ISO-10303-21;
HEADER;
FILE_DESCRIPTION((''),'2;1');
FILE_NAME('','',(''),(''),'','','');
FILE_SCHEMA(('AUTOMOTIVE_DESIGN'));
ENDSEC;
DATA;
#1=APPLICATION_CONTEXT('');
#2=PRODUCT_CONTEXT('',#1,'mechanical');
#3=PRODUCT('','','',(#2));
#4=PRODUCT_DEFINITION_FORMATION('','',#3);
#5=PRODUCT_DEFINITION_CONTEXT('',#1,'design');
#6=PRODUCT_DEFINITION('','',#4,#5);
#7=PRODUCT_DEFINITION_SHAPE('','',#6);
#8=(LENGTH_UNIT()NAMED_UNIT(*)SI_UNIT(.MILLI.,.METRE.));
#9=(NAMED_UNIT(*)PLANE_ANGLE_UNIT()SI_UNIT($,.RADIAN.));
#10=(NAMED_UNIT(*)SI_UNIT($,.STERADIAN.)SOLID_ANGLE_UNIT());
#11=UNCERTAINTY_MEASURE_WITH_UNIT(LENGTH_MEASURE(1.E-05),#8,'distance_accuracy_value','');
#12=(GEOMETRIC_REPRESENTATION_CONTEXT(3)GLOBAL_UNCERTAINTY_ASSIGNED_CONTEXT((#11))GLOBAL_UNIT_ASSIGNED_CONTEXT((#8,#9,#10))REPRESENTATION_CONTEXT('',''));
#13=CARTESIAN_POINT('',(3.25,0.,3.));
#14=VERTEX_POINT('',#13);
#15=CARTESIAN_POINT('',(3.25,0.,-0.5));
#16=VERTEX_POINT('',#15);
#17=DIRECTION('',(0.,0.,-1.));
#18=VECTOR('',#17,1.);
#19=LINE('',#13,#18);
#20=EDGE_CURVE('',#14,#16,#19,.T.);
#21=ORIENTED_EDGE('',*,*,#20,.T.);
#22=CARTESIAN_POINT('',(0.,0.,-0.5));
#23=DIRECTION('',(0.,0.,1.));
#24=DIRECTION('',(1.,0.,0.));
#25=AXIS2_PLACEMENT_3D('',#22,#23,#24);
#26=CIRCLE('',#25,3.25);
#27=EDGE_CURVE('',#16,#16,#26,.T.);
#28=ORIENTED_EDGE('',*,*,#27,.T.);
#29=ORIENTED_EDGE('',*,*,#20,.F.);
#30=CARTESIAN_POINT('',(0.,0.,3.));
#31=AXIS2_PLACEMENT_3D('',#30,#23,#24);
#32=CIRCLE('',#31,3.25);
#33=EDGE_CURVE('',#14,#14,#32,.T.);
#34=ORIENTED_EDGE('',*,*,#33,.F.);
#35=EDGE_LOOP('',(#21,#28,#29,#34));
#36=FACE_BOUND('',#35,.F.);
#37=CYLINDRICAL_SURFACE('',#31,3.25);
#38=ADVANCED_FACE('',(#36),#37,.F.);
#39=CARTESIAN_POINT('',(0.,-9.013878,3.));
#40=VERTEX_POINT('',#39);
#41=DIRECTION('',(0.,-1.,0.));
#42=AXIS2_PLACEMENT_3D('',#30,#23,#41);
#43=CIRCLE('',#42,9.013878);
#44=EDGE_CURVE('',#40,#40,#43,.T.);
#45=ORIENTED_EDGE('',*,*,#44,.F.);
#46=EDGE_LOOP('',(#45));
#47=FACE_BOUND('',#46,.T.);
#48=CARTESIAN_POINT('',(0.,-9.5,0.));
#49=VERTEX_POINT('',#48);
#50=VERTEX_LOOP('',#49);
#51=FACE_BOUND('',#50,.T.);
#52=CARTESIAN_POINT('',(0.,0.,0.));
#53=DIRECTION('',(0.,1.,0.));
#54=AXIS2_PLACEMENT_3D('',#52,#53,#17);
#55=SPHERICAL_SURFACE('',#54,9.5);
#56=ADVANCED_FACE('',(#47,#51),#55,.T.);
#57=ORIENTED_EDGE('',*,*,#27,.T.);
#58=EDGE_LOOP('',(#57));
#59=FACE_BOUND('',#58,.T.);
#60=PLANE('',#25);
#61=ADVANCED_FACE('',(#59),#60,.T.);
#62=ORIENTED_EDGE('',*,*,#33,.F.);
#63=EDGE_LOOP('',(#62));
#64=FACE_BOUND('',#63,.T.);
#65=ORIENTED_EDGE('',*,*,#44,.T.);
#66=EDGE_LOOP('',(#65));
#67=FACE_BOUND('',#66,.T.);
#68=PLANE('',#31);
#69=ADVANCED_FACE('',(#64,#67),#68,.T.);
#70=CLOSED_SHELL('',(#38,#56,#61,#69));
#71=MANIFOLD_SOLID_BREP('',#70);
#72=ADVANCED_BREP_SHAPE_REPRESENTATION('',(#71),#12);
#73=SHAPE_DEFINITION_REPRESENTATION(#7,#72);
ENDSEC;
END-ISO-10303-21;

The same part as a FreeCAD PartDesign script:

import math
import FreeCAD as App
import Part
import Sketcher
from FreeCAD import Vector


def add_polygon(sketch, points):
    """Adds a closed chain of lines whose ends are joined by coincident constraints."""
    first, n = sketch.GeometryCount, len(points)
    for a, b in zip(points, points[1:] + points[:1]):
        sketch.addGeometry(Part.LineSegment(App.Vector(*a, 0), App.Vector(*b, 0)), False)
    for i in range(n):
        sketch.addConstraint(Sketcher.Constraint("Coincident", first + i, 2, first + (i + 1) % n, 1))

doc = App.newDocument("Part")
body = doc.addObject("PartDesign::Body", "Body")

sketch1 = doc.addObject("Sketcher::SketchObject", "Sketch")
body.addObject(sketch1)
sketch1.AttachmentSupport = (doc.YZ_Plane, [""])
sketch1.MapMode = "FlatFace"
sketch1.addGeometry([
    Part.LineSegment(Vector(9.5, 0, 0), Vector(-9.5, 0, 0)),
    Part.ArcOfCircle(Part.Circle(Vector(0, 0, 0), Vector(0, 0, 1), 9.5), math.radians(180), math.radians(360)),
], False)
sketch1.addConstraint([
    Sketcher.Constraint("Coincident", 0, 1, 1, 2),
    Sketcher.Constraint("Coincident", 1, 1, 0, 2),
    Sketcher.Constraint("Horizontal", 0),
    Sketcher.Constraint("Coincident", 1, 3, -1, 1),
    Sketcher.Constraint("PointOnObject", 0, 1, -1),
    Sketcher.Constraint("Radius", 1, 9.5),
])
revolution = doc.addObject("PartDesign::Revolution", "Revolution")
body.addObject(revolution)
revolution.Profile = sketch1
revolution.ReferenceAxis = (sketch1, ["H_Axis"])
revolution.Angle = 360
body2 = doc.addObject("PartDesign::Body", "Body001")

sketch2 = doc.addObject("Sketcher::SketchObject", "Sketch001")
body2.addObject(sketch2)
sketch2.AttachmentSupport = (doc.getObject("XY_Plane001"), [""])
sketch2.MapMode = "FlatFace"
add_polygon(sketch2, [(-12.847432, 12.292297), (-12.847432, -12.292297), (12.847432, -12.292297), (12.847432, 12.292297)])
sketch2.addConstraint([
    Sketcher.Constraint("Vertical", 0),
    Sketcher.Constraint("Horizontal", 1),
    Sketcher.Constraint("Vertical", 2),
    Sketcher.Constraint("Horizontal", 3),
    Sketcher.Constraint("Symmetric", 0, 2, 2, 2, -1, 1),
    Sketcher.Constraint("DistanceX", 1, 1, 1, 2, 25.694864),
    Sketcher.Constraint("DistanceY", 0, 2, 0, 1, 24.584594),
])
pad1 = doc.addObject("PartDesign::Pad", "Pad")
body2.addObject(pad1)
pad1.Profile = sketch2
pad1.Length = 25
body3 = doc.addObject("PartDesign::Body", "Body002")
doc.recompute()

body2.Placement = App.Placement(Vector(0, 0, 3), App.Rotation(Vector(0, 0, 1), 0))
boolean = doc.addObject("PartDesign::Boolean", "Boolean")
body3.addObject(boolean)
boolean.Type = "Fuse"
boolean.addObjects([body2])
doc.recompute()

boolean2 = doc.addObject("PartDesign::Boolean", "Boolean001")
body.addObject(boolean2)
boolean2.Type = "Cut"
boolean2.addObjects([body3])

sketch3 = doc.addObject("Sketcher::SketchObject", "Sketch002")
body.addObject(sketch3)
sketch3.AttachmentSupport = (doc.XY_Plane, [""])
sketch3.MapMode = "FlatFace"
sketch3.AttachmentOffset = App.Placement(Vector(0, 0, 3), App.Rotation())
sketch3.addGeometry(Part.Circle(Vector(0, 0, 0), Vector(0, 0, 1), 3.25), False)
sketch3.addConstraint([
    Sketcher.Constraint("Coincident", 0, 3, -1, 1),
    Sketcher.Constraint("Diameter", 0, 6.5),
])
pocket1 = doc.addObject("PartDesign::Pocket", "Pocket")
body.addObject(pocket1)
pocket1.Profile = sketch3
pocket1.Length = 3.5

doc.recompute()
